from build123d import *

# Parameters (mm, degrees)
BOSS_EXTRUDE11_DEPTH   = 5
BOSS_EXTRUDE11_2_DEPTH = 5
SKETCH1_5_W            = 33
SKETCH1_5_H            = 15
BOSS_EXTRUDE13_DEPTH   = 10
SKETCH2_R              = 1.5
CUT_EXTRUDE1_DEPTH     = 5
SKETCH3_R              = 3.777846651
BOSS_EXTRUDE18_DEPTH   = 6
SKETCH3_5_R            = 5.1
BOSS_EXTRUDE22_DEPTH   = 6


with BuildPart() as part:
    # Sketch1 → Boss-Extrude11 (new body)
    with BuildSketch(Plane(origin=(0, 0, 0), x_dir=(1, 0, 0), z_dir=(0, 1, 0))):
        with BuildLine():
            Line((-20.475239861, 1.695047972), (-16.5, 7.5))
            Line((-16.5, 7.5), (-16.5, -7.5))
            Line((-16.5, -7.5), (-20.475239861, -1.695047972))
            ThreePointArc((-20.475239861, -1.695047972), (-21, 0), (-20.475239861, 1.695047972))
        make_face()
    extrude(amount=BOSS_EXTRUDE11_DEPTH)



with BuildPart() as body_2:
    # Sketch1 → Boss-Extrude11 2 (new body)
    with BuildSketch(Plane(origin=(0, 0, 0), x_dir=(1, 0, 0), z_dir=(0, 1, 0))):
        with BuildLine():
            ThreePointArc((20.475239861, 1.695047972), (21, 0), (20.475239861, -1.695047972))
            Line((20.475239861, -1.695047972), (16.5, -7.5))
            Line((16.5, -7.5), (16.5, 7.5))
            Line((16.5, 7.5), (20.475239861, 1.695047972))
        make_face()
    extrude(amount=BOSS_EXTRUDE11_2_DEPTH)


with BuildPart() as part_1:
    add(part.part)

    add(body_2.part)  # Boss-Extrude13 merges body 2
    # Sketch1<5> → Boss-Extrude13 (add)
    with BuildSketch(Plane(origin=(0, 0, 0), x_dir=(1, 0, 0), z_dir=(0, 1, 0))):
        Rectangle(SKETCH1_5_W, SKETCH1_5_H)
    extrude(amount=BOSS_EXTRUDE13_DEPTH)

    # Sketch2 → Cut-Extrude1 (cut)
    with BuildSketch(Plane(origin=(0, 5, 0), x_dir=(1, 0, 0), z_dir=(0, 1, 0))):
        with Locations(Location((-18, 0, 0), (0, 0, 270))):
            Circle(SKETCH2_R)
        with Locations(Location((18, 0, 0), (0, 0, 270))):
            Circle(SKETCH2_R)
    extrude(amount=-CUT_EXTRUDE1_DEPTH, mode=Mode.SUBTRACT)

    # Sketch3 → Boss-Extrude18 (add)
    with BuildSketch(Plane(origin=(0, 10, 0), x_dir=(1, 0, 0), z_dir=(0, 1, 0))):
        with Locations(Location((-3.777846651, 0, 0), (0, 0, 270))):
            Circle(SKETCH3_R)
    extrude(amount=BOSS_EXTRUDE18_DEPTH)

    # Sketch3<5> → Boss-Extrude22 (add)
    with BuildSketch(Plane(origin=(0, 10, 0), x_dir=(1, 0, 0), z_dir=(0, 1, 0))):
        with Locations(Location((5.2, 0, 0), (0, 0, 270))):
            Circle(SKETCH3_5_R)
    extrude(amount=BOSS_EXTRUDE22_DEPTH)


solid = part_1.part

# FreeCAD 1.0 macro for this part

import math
import FreeCAD as App
import Part
import Sketcher
from FreeCAD import Vector
Q = App.Units.Quantity


def add_polygon(sketch, points):
    """Adds a closed chain of lines whose ends are joined by coincident constraints."""
    first, n = sketch.GeometryCount, len(points)
    for a, b in zip(points, points[1:] + points[:1]):
        sketch.addGeometry(Part.LineSegment(App.Vector(*a, 0), App.Vector(*b, 0)), False)
    for i in range(n):
        sketch.addConstraint(Sketcher.Constraint("Coincident", first + i, 2, first + (i + 1) % n, 1))

doc = App.newDocument("Part")
params = doc.addObject("Spreadsheet::Sheet", "Params")
for row, (alias, value) in enumerate([
    ("sketch1_radius", "3 mm"),
    ("sketch1_height", "15 mm"),
    ("pad1_length", "5 mm"),
    ("sketch2_radius", "3 mm"),
    ("sketch2_height", "15 mm"),
    ("pad2_length", "5 mm"),
    ("sketch3_width", "33 mm"),
    ("sketch3_height", "15 mm"),
    ("pad3_length", "10 mm"),
    ("sketch4_diameter", "3 mm"),
    ("pocket1_length", "5 mm"),
    ("pad4_length", "6 mm"),
    ("sketch6_diameter", "10.2 mm"),
    ("pad5_length", "6 mm"),
], start=1):
    params.set(f"A{row}", alias)
    params.set(f"B{row}", "=" + value)
    params.setAlias(f"B{row}", alias)

body = doc.addObject("PartDesign::Body", "Body")

sketch1 = body.newObject("Sketcher::SketchObject", "Sketch")
sketch1.AttachmentSupport = (doc.getObject("XZ_Plane"), [""])
sketch1.MapMode = "FlatFace"
sketch1.addGeometry(Part.LineSegment(Vector(-16.5, -7.5, 0), Vector(-20.5, -1.7, 0)), False)
sketch1.addGeometry(Part.ArcOfCircle(Part.Circle(Vector(-18, 0, 0), Vector(0, 0, 1), 3), math.radians(146), math.radians(214)), False)
sketch1.addGeometry(Part.LineSegment(Vector(-20.5, 1.7, 0), Vector(-16.5, 7.5, 0)), False)
sketch1.addGeometry(Part.LineSegment(Vector(-16.5, 7.5, 0), Vector(-16.5, -7.5, 0)), False)
sketch1.addConstraint(Sketcher.Constraint("Tangent", 0, 2, 1, 2))
sketch1.addConstraint(Sketcher.Constraint("Tangent", 1, 1, 2, 1))
sketch1.addConstraint(Sketcher.Constraint("Coincident", 2, 2, 3, 1))
sketch1.addConstraint(Sketcher.Constraint("Coincident", 3, 2, 0, 1))
sketch1.addConstraint(Sketcher.Constraint("Vertical", 3))
sketch1.addConstraint(Sketcher.Constraint("Symmetric", 0, 2, 1, 1, -1))
sketch1.addConstraint(Sketcher.Constraint("Radius", 1, Q("3 mm")))
sketch1.addConstraint(Sketcher.Constraint("DistanceY", 3, 2, 3, 1, Q("15 mm")))
sketch1.addConstraint(Sketcher.Constraint("DistanceX", 1, 3, -1, 1, Q("18 mm")))
sketch1.addConstraint(Sketcher.Constraint("DistanceX", 2, 2, -1, 1, Q("16.5 mm")))
sketch1.setExpression("Constraints[6]", "Params.sketch1_radius")
sketch1.setExpression("Constraints[7]", "Params.sketch1_height")
pad1 = body.newObject("PartDesign::Pad", "Pad")
pad1.Profile = sketch1
pad1.setExpression("Length", "Params.pad1_length")
pad1.Reversed = True
body2 = doc.addObject("PartDesign::Body", "Body001")

sketch2 = body2.newObject("Sketcher::SketchObject", "Sketch001")
sketch2.AttachmentSupport = (doc.getObject("XZ_Plane001"), [""])
sketch2.MapMode = "FlatFace"
sketch2.addGeometry(Part.ArcOfCircle(Part.Circle(Vector(18, 0, 0), Vector(0, 0, 1), 3), math.radians(-34), math.radians(34)), False)
sketch2.addGeometry(Part.LineSegment(Vector(20.5, -1.7, 0), Vector(16.5, -7.5, 0)), False)
sketch2.addGeometry(Part.LineSegment(Vector(16.5, -7.5, 0), Vector(16.5, 7.5, 0)), False)
sketch2.addGeometry(Part.LineSegment(Vector(16.5, 7.5, 0), Vector(20.5, 1.7, 0)), False)
sketch2.addConstraint(Sketcher.Constraint("Tangent", 0, 1, 1, 1))
sketch2.addConstraint(Sketcher.Constraint("Coincident", 1, 2, 2, 1))
sketch2.addConstraint(Sketcher.Constraint("Coincident", 2, 2, 3, 1))
sketch2.addConstraint(Sketcher.Constraint("Tangent", 3, 2, 0, 2))
sketch2.addConstraint(Sketcher.Constraint("Vertical", 2))
sketch2.addConstraint(Sketcher.Constraint("Symmetric", 0, 1, 3, 2, -1))
sketch2.addConstraint(Sketcher.Constraint("Radius", 0, Q("3 mm")))
sketch2.addConstraint(Sketcher.Constraint("DistanceY", 2, 1, 2, 2, Q("15 mm")))
sketch2.addConstraint(Sketcher.Constraint("DistanceX", -1, 1, 0, 3, Q("18 mm")))
sketch2.addConstraint(Sketcher.Constraint("DistanceX", -1, 1, 1, 2, Q("16.5 mm")))
sketch2.setExpression("Constraints[6]", "Params.sketch2_radius")
sketch2.setExpression("Constraints[7]", "Params.sketch2_height")
pad2 = body2.newObject("PartDesign::Pad", "Pad001")
pad2.Profile = sketch2
pad2.setExpression("Length", "Params.pad2_length")
pad2.Reversed = True
body.AllowCompound = True
doc.recompute()

boolean = body.newObject("PartDesign::Boolean", "Boolean")
boolean.Type = "Fuse"
boolean.addObjects([body2])

sketch3 = body.newObject("Sketcher::SketchObject", "Sketch002")
sketch3.AttachmentSupport = (doc.getObject("XZ_Plane"), [""])
sketch3.MapMode = "FlatFace"
add_polygon(sketch3, [(-16, -8), (-16, 8), (16, 8), (16, -8)])
sketch3.addConstraint(Sketcher.Constraint("Vertical", 0))
sketch3.addConstraint(Sketcher.Constraint("Horizontal", 1))
sketch3.addConstraint(Sketcher.Constraint("Vertical", 2))
sketch3.addConstraint(Sketcher.Constraint("Horizontal", 3))
sketch3.addConstraint(Sketcher.Constraint("Symmetric", 0, 2, 2, 2, -1, 1))
sketch3.addConstraint(Sketcher.Constraint("DistanceX", 1, 1, 1, 2, Q("33 mm")))
sketch3.addConstraint(Sketcher.Constraint("DistanceY", 0, 1, 0, 2, Q("15 mm")))
sketch3.setExpression("Constraints[9]", "Params.sketch3_width")
sketch3.setExpression("Constraints[10]", "Params.sketch3_height")
pad3 = body.newObject("PartDesign::Pad", "Pad002")
pad3.Profile = sketch3
pad3.setExpression("Length", "Params.pad3_length")
pad3.Reversed = True

sketch4 = body.newObject("Sketcher::SketchObject", "Sketch003")
sketch4.AttachmentSupport = (doc.getObject("XZ_Plane"), [""])
sketch4.MapMode = "FlatFace"
sketch4.AttachmentOffset = App.Placement(Vector(0, 0, -5), App.Rotation())
sketch4.addGeometry(Part.Circle(Vector(-18, 0, 0), Vector(0, 0, 1), 1.5), False)
sketch4.addGeometry(Part.Circle(Vector(18, 0, 0), Vector(0, 0, 1), 1.5), False)
sketch4.addConstraint(Sketcher.Constraint("Equal", 0, 1))
sketch4.addConstraint(Sketcher.Constraint("Symmetric", 0, 3, 1, 3, -1, 1))
sketch4.addConstraint(Sketcher.Constraint("PointOnObject", 0, 3, -1))
sketch4.addConstraint(Sketcher.Constraint("Diameter", 0, Q("3 mm")))
sketch4.addConstraint(Sketcher.Constraint("DistanceX", 0, 3, -1, 1, Q("18 mm")))
sketch4.setExpression("Constraints[3]", "Params.sketch4_diameter")
pocket1 = body.newObject("PartDesign::Pocket", "Pocket")
pocket1.Profile = sketch4
pocket1.setExpression("Length", "Params.pocket1_length")
pocket1.Reversed = True

sketch5 = body.newObject("Sketcher::SketchObject", "Sketch004")
sketch5.AttachmentSupport = (doc.getObject("XZ_Plane"), [""])
sketch5.MapMode = "FlatFace"
sketch5.AttachmentOffset = App.Placement(Vector(0, 0, -10), App.Rotation())
sketch5.addGeometry(Part.Circle(Vector(-3.8, 0, 0), Vector(0, 0, 1), 3.8), False)
sketch5.addConstraint(Sketcher.Constraint("PointOnObject", 0, 3, -1))
sketch5.addConstraint(Sketcher.Constraint("Diameter", 0, Q("7.555693 mm")))
sketch5.addConstraint(Sketcher.Constraint("DistanceX", 0, 3, -1, 1, Q("3.777847 mm")))
pad4 = body.newObject("PartDesign::Pad", "Pad003")
pad4.Profile = sketch5
pad4.setExpression("Length", "Params.pad4_length")
pad4.Reversed = True

sketch6 = body.newObject("Sketcher::SketchObject", "Sketch005")
sketch6.AttachmentSupport = (doc.getObject("XZ_Plane"), [""])
sketch6.MapMode = "FlatFace"
sketch6.AttachmentOffset = App.Placement(Vector(0, 0, -10), App.Rotation())
sketch6.addGeometry(Part.Circle(Vector(5, 0, 0), Vector(0, 0, 1), 5), False)
sketch6.addConstraint(Sketcher.Constraint("PointOnObject", 0, 3, -1))
sketch6.addConstraint(Sketcher.Constraint("Diameter", 0, Q("10.2 mm")))
sketch6.addConstraint(Sketcher.Constraint("DistanceX", -1, 1, 0, 3, Q("5.2 mm")))
sketch6.setExpression("Constraints[1]", "Params.sketch6_diameter")
pad5 = body.newObject("PartDesign::Pad", "Pad004")
pad5.Profile = sketch6
pad5.setExpression("Length", "Params.pad5_length")
pad5.Reversed = True

doc.recompute()
